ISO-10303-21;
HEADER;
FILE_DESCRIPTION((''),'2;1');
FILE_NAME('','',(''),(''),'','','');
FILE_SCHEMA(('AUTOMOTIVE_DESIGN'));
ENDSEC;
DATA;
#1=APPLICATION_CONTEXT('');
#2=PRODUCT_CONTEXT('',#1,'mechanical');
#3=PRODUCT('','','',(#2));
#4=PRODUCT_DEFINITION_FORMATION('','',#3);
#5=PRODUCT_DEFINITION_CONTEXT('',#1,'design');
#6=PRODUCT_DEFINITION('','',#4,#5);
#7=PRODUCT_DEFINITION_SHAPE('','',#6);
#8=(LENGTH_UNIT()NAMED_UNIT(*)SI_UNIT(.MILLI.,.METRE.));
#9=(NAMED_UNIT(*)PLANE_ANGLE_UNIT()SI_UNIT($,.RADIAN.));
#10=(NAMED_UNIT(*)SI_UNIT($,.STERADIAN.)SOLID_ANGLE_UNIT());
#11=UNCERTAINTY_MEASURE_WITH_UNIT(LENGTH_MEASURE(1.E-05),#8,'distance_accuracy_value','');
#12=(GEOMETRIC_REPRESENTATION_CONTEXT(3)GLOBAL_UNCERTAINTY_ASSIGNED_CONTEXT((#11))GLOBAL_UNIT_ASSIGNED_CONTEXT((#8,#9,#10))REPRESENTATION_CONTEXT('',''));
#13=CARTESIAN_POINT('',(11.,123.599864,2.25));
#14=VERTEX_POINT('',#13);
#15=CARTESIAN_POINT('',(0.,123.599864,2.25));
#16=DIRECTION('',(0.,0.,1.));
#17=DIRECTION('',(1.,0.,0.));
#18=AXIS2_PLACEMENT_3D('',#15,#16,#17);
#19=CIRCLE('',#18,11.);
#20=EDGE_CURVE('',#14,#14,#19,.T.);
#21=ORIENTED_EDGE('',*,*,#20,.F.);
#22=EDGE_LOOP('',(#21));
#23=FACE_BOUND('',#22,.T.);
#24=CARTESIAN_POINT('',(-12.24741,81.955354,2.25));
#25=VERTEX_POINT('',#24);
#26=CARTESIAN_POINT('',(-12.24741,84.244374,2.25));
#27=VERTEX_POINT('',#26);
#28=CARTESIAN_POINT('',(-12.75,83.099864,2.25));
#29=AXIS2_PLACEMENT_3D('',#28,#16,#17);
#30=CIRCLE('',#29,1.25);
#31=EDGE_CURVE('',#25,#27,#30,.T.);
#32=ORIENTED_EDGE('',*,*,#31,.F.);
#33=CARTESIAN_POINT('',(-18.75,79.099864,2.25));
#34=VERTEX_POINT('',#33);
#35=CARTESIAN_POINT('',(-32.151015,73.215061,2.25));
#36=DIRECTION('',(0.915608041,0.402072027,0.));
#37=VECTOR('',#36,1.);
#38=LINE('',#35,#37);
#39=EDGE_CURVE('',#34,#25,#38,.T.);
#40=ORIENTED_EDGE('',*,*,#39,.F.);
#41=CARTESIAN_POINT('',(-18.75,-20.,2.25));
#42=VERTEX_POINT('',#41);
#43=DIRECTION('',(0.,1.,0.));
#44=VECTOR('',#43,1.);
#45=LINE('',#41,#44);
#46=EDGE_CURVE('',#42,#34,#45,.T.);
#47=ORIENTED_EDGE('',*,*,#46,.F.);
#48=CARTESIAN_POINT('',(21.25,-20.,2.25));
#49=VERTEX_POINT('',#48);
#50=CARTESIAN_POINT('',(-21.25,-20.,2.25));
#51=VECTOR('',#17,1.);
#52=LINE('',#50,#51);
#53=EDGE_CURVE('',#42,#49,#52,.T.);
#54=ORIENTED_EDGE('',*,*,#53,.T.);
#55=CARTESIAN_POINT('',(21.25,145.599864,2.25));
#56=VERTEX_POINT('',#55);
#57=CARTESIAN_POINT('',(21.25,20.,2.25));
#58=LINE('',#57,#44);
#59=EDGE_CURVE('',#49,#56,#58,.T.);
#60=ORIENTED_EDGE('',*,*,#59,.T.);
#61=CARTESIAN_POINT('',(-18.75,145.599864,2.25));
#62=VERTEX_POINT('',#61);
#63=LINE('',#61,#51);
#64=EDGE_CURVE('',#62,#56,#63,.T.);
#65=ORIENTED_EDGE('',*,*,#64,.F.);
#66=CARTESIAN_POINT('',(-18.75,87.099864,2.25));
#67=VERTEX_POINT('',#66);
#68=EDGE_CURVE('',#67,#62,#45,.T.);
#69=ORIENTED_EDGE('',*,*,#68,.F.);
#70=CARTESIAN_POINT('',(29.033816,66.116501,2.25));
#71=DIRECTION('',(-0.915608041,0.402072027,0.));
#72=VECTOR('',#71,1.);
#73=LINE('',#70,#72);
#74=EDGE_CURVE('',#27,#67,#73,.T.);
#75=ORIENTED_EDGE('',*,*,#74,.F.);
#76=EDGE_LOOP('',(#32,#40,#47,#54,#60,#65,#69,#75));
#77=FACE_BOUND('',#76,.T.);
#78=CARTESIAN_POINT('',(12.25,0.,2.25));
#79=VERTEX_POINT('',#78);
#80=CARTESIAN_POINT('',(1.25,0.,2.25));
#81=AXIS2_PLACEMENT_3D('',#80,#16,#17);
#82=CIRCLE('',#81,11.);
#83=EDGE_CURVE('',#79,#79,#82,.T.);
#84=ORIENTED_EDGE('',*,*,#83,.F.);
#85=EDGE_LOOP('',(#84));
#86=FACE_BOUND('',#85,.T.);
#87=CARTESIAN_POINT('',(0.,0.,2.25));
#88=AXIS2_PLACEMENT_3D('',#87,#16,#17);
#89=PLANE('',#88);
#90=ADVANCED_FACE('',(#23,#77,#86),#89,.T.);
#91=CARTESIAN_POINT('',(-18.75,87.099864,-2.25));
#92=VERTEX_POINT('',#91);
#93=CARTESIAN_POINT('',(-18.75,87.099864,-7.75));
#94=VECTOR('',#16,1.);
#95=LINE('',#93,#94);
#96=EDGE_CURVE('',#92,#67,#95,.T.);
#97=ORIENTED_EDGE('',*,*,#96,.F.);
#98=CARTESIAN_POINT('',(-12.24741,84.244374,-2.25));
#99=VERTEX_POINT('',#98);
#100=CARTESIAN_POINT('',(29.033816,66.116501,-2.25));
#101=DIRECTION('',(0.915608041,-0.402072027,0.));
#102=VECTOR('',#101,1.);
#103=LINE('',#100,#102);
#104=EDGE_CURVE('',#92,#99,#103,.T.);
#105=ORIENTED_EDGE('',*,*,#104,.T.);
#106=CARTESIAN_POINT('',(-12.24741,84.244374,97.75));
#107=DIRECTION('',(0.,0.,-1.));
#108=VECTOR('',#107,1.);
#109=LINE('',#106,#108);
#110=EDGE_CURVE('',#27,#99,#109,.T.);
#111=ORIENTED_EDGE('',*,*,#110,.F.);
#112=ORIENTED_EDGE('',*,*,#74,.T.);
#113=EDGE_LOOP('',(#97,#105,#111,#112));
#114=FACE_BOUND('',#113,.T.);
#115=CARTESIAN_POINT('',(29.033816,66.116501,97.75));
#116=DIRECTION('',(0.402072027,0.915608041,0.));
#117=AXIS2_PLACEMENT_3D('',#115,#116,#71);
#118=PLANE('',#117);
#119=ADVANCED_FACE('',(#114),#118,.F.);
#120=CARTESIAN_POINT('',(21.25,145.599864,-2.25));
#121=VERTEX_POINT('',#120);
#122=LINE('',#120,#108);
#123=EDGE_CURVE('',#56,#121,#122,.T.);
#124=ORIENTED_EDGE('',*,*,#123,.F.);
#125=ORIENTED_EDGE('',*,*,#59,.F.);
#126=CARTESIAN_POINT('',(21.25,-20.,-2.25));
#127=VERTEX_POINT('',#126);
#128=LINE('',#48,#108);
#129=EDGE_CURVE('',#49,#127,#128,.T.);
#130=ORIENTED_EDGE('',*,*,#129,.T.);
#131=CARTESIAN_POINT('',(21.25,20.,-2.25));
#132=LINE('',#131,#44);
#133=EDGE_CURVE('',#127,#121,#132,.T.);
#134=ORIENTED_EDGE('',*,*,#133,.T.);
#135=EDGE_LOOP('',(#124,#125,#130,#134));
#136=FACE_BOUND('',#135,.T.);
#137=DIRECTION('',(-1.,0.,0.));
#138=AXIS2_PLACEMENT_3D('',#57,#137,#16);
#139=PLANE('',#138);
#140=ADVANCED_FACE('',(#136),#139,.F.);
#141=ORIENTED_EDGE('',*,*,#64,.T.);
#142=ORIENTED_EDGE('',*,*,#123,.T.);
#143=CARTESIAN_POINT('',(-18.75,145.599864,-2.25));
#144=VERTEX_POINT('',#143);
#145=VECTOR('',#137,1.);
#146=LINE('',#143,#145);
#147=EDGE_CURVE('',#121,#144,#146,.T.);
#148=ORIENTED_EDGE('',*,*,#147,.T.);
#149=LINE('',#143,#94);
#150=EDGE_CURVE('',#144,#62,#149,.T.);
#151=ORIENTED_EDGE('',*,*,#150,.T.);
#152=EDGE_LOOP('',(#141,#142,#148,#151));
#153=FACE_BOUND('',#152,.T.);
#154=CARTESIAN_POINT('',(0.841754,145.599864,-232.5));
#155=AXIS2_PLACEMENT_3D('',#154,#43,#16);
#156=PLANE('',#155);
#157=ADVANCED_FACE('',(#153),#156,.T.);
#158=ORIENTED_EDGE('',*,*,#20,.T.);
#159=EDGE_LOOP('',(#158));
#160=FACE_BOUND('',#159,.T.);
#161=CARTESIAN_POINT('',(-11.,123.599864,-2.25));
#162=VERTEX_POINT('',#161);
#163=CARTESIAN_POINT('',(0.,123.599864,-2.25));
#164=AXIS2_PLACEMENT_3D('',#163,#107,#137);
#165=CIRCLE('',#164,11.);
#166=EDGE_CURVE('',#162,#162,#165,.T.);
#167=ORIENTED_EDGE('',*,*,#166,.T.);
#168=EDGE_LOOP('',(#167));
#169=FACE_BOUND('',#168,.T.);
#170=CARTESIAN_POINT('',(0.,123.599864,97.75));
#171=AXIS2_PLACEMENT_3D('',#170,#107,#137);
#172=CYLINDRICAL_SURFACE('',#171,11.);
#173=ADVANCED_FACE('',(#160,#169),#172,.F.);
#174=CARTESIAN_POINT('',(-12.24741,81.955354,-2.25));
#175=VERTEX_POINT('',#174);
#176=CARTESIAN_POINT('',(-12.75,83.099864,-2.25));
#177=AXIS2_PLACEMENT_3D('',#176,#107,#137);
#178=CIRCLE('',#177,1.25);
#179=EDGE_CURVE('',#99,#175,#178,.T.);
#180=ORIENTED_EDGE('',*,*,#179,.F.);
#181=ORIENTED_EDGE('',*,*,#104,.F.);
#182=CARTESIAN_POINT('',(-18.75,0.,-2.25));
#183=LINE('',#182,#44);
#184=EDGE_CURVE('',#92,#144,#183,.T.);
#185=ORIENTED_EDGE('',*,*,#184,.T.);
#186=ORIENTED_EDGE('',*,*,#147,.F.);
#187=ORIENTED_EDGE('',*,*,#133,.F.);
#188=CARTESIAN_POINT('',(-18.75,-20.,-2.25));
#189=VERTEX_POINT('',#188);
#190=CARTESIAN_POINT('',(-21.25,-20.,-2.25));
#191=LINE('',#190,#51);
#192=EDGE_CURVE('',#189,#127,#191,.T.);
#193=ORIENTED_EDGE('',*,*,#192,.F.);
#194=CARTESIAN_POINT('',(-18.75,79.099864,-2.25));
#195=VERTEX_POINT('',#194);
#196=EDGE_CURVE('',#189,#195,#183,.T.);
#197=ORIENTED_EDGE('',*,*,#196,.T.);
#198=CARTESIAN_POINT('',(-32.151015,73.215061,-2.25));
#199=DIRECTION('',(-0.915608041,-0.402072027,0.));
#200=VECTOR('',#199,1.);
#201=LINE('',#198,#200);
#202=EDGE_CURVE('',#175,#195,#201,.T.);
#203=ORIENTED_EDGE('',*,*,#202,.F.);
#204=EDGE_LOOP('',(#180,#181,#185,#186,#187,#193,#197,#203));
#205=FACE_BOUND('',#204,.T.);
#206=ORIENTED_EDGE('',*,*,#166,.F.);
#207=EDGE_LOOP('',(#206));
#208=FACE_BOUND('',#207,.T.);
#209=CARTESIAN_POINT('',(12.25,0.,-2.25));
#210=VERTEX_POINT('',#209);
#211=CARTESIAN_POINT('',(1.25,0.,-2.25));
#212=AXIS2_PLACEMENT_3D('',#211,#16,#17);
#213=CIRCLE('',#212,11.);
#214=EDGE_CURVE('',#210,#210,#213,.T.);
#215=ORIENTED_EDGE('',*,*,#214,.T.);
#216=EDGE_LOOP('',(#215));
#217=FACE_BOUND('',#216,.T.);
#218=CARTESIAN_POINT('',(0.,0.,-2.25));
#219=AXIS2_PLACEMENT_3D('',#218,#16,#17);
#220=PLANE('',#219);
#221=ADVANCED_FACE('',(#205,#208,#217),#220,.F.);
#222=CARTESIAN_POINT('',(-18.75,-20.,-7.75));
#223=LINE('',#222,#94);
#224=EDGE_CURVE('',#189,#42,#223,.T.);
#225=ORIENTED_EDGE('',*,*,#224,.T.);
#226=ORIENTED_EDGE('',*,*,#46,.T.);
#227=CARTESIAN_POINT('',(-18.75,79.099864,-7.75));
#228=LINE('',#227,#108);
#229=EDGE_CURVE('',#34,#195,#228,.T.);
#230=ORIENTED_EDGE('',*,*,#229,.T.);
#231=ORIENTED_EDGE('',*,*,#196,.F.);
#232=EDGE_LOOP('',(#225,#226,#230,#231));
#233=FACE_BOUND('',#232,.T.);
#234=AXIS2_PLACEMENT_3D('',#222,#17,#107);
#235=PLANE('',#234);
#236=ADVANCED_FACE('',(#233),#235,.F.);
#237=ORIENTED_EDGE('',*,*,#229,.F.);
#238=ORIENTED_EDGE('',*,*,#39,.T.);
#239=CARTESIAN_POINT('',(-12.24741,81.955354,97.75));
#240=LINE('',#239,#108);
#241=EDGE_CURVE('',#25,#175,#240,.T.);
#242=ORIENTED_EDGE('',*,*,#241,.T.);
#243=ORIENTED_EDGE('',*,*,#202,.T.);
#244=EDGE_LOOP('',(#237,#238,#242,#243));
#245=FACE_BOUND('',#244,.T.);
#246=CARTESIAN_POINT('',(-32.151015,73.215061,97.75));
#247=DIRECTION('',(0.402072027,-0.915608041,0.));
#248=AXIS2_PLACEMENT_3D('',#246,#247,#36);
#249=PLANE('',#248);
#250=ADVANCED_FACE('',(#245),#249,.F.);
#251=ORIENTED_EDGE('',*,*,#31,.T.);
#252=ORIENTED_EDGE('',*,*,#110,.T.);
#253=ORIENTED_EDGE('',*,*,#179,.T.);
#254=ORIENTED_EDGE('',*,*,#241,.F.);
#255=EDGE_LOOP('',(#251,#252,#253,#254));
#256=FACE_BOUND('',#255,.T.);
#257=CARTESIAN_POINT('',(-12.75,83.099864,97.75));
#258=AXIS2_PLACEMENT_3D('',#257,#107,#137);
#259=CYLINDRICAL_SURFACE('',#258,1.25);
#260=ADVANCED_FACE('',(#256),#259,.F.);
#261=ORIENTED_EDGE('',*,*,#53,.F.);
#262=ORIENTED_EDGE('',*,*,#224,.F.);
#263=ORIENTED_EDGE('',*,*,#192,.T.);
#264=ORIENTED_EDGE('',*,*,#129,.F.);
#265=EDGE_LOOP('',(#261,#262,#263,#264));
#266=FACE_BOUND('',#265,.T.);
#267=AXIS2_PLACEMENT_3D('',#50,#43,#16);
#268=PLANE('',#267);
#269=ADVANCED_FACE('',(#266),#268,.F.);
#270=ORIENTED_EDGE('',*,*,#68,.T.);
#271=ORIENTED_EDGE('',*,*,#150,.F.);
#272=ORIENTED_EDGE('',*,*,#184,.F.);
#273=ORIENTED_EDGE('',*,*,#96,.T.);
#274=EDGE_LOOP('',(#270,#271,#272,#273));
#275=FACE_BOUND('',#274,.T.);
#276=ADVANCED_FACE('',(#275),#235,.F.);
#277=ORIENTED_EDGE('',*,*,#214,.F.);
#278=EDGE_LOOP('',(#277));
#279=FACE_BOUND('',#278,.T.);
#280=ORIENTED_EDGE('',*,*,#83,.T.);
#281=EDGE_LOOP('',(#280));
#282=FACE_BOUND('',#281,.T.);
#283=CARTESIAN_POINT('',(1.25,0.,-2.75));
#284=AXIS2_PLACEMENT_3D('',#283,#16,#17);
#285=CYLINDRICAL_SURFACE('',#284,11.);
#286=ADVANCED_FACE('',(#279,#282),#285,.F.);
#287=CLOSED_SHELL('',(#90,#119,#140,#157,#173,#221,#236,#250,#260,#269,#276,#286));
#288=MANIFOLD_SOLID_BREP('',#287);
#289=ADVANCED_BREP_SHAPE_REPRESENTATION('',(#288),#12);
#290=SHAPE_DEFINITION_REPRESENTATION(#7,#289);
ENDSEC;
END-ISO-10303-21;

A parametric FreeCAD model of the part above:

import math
import FreeCAD as App
import Part
import Sketcher
from FreeCAD import Vector


def add_polygon(sketch, points):
    """Adds a closed chain of lines whose ends are joined by coincident constraints."""
    first, n = sketch.GeometryCount, len(points)
    for a, b in zip(points, points[1:] + points[:1]):
        sketch.addGeometry(Part.LineSegment(App.Vector(*a, 0), App.Vector(*b, 0)), False)
    for i in range(n):
        sketch.addConstraint(Sketcher.Constraint("Coincident", first + i, 2, first + (i + 1) % n, 1))

doc = App.newDocument("Part")
body = doc.addObject("PartDesign::Body", "Body")

sketch1 = body.newObject("Sketcher::SketchObject", "Sketch")
sketch1.AttachmentSupport = (doc.getObject("XY_Plane"), [""])
sketch1.MapMode = "FlatFace"
add_polygon(sketch1, [(-21.25, 20), (-21.25, -20), (21.25, -20), (21.25, 20)])
sketch1.addConstraint([
    Sketcher.Constraint("Vertical", 0),
    Sketcher.Constraint("Horizontal", 1),
    Sketcher.Constraint("Vertical", 2),
    Sketcher.Constraint("Horizontal", 3),
    Sketcher.Constraint("Symmetric", 0, 2, 2, 2, -1, 1),
    Sketcher.Constraint("DistanceY", 0, 2, 0, 1, 40.0),
    Sketcher.Constraint("DistanceX", 1, 1, 1, 2, 42.5),
])
pad1 = body.newObject("PartDesign::Pad", "Pad")
pad1.Profile = sketch1
pad1.Length = 4.5
pad1.Midplane = True

sketch2 = body.newObject("Sketcher::SketchObject", "Sketch001")
sketch2.AttachmentSupport = (doc.getObject("XY_Plane"), [""])
sketch2.MapMode = "FlatFace"
sketch2.AttachmentOffset = App.Placement(Vector(0, 0, 2.25), App.Rotation())
sketch2.addGeometry(Part.Circle(Vector(1.25, 0, 0), Vector(0, 0, 1), 11), False)
sketch2.addConstraint([
    Sketcher.Constraint("PointOnObject", 0, 3, -1),
    Sketcher.Constraint("Diameter", 0, 22.0),
    Sketcher.Constraint("DistanceX", -1, 1, 0, 3, 1.25),
])
pocket1 = body.newObject("PartDesign::Pocket", "Pocket")
pocket1.Profile = sketch2
pocket1.Length = 10
pocket1.Midplane = True

sketch3 = body.newObject("Sketcher::SketchObject", "Sketch002")
sketch3.AttachmentSupport = (doc.getObject("XZ_Plane"), [""])
sketch3.MapMode = "FlatFace"
sketch3.AttachmentOffset = App.Placement(Vector(0, 0, -20), App.Rotation())
add_polygon(sketch3, [(-21.25, -2.25), (-21.25, 2.25), (21.25, 2.25), (21.25, -2.25)])
sketch3.addConstraint([
    Sketcher.Constraint("Vertical", 0),
    Sketcher.Constraint("Horizontal", 1),
    Sketcher.Constraint("Vertical", 2),
    Sketcher.Constraint("Horizontal", 3),
    Sketcher.Constraint("Symmetric", 0, 2, 2, 2, -1, 1),
    Sketcher.Constraint("DistanceX", 1, 1, 1, 2, 42.5),
    Sketcher.Constraint("DistanceY", 0, 1, 0, 2, 4.5),
])
pad2 = body.newObject("PartDesign::Pad", "Pad001")
pad2.Profile = sketch3
pad2.Length = 15
pad2.Reversed = True

sketch4 = body.newObject("Sketcher::SketchObject", "Sketch003")
sketch4.AttachmentSupport = (doc.getObject("XY_Plane"), [""])
sketch4.MapMode = "FlatFace"
sketch4.AttachmentOffset = App.Placement(Vector(0, 0, 2.25), App.Rotation())
add_polygon(sketch4, [(-21.25, 35), (-21.25, -20), (-18.75, -20), (-18.75, 35)])
sketch4.addConstraint([
    Sketcher.Constraint("Vertical", 0),
    Sketcher.Constraint("Horizontal", 1),
    Sketcher.Constraint("Vertical", 2),
    Sketcher.Constraint("Horizontal", 3),
    Sketcher.Constraint("DistanceY", 0, 2, 0, 1, 55.0),
    Sketcher.Constraint("DistanceX", 1, 1, 1, 2, 2.5),
    Sketcher.Constraint("DistanceY", 0, 2, -1, 1, 20.0),
    Sketcher.Constraint("DistanceX", 0, 2, -1, 1, 21.25),
])
pocket2 = body.newObject("PartDesign::Pocket", "Pocket001")
pocket2.Profile = sketch4
pocket2.Length = 10

sketch5 = body.newObject("Sketcher::SketchObject", "Sketch004")
sketch5.AttachmentSupport = (doc.getObject("XZ_Plane"), [""])
sketch5.MapMode = "FlatFace"
sketch5.AttachmentOffset = App.Placement(Vector(0, 0, -35), App.Rotation())
add_polygon(sketch5, [(-18.75, -2.25), (-18.75, 2.25), (21.25, 2.25), (21.25, -2.25)])
sketch5.addConstraint([
    Sketcher.Constraint("Vertical", 0),
    Sketcher.Constraint("Horizontal", 1),
    Sketcher.Constraint("Vertical", 2),
    Sketcher.Constraint("Horizontal", 3),
    Sketcher.Constraint("DistanceX", 1, 1, 1, 2, 40.0),
    Sketcher.Constraint("DistanceY", 0, 1, 0, 2, 4.5),
    Sketcher.Constraint("DistanceX", 0, 2, -1, 1, 18.75),
    Sketcher.Constraint("DistanceY", -1, 1, 0, 2, 2.25),
])
pad3 = body.newObject("PartDesign::Pad", "Pad002")
pad3.Profile = sketch5
pad3.Length = 110.599864
pad3.Reversed = True

sketch6 = body.newObject("Sketcher::SketchObject", "Sketch005")
sketch6.AttachmentSupport = (doc.getObject("XY_Plane"), [""])
sketch6.MapMode = "FlatFace"
sketch6.AttachmentOffset = App.Placement(Vector(0, 0, -2.25), App.Rotation())
sketch6.addGeometry(Part.Circle(Vector(0, 123.599864, 0), Vector(0, 0, 1), 11), False)
sketch6.addConstraint([
    Sketcher.Constraint("PointOnObject", 0, 3, -2),
    Sketcher.Constraint("Diameter", 0, 22.0),
    Sketcher.Constraint("DistanceY", -1, 1, 0, 3, 123.599864),
])
pocket3 = body.newObject("PartDesign::Pocket", "Pocket002")
pocket3.Profile = sketch6
pocket3.Length = 100
pocket3.Reversed = True

sketch7 = body.newObject("Sketcher::SketchObject", "Sketch006")
sketch7.AttachmentSupport = (doc.getObject("XY_Plane"), [""])
sketch7.MapMode = "FlatFace"
sketch7.AttachmentOffset = App.Placement(Vector(0, 0, -2.25), App.Rotation())
sketch7.addGeometry([
    Part.LineSegment(Vector(-18.75, 79.099864, 0), Vector(-18.75, 87.099864, 0)),
    Part.LineSegment(Vector(-18.75, 87.099864, 0), Vector(-12.24741, 84.244374, 0)),
    Part.ArcOfCircle(Part.Circle(Vector(-12.75, 83.099864, 0), Vector(0, 0, 1), 1.25), math.radians(-66.292224), math.radians(66.292222)),
    Part.LineSegment(Vector(-12.24741, 81.955354, 0), Vector(-18.75, 79.099864, 0)),
], False)
sketch7.addConstraint([
    Sketcher.Constraint("Coincident", 0, 2, 1, 1),
    Sketcher.Constraint("Tangent", 1, 2, 2, 2),
    Sketcher.Constraint("Tangent", 2, 1, 3, 1),
    Sketcher.Constraint("Coincident", 3, 2, 0, 1),
    Sketcher.Constraint("Vertical", 0),
    Sketcher.Constraint("Vertical", 1, 2, 2, 1),
    Sketcher.Constraint("DistanceY", 0, 1, 0, 2, 8.0),
    Sketcher.Constraint("Radius", 2, 1.25),
    Sketcher.Constraint("DistanceX", 0, 2, 2, 3, 6.0),
    Sketcher.Constraint("DistanceX", 2, 3, -1, 1, 12.75),
    Sketcher.Constraint("DistanceY", -1, 1, 2, 3, 83.099864),
])
pocket4 = body.newObject("PartDesign::Pocket", "Pocket003")
pocket4.Profile = sketch7
pocket4.Length = 100
pocket4.Reversed = True

doc.recompute()
